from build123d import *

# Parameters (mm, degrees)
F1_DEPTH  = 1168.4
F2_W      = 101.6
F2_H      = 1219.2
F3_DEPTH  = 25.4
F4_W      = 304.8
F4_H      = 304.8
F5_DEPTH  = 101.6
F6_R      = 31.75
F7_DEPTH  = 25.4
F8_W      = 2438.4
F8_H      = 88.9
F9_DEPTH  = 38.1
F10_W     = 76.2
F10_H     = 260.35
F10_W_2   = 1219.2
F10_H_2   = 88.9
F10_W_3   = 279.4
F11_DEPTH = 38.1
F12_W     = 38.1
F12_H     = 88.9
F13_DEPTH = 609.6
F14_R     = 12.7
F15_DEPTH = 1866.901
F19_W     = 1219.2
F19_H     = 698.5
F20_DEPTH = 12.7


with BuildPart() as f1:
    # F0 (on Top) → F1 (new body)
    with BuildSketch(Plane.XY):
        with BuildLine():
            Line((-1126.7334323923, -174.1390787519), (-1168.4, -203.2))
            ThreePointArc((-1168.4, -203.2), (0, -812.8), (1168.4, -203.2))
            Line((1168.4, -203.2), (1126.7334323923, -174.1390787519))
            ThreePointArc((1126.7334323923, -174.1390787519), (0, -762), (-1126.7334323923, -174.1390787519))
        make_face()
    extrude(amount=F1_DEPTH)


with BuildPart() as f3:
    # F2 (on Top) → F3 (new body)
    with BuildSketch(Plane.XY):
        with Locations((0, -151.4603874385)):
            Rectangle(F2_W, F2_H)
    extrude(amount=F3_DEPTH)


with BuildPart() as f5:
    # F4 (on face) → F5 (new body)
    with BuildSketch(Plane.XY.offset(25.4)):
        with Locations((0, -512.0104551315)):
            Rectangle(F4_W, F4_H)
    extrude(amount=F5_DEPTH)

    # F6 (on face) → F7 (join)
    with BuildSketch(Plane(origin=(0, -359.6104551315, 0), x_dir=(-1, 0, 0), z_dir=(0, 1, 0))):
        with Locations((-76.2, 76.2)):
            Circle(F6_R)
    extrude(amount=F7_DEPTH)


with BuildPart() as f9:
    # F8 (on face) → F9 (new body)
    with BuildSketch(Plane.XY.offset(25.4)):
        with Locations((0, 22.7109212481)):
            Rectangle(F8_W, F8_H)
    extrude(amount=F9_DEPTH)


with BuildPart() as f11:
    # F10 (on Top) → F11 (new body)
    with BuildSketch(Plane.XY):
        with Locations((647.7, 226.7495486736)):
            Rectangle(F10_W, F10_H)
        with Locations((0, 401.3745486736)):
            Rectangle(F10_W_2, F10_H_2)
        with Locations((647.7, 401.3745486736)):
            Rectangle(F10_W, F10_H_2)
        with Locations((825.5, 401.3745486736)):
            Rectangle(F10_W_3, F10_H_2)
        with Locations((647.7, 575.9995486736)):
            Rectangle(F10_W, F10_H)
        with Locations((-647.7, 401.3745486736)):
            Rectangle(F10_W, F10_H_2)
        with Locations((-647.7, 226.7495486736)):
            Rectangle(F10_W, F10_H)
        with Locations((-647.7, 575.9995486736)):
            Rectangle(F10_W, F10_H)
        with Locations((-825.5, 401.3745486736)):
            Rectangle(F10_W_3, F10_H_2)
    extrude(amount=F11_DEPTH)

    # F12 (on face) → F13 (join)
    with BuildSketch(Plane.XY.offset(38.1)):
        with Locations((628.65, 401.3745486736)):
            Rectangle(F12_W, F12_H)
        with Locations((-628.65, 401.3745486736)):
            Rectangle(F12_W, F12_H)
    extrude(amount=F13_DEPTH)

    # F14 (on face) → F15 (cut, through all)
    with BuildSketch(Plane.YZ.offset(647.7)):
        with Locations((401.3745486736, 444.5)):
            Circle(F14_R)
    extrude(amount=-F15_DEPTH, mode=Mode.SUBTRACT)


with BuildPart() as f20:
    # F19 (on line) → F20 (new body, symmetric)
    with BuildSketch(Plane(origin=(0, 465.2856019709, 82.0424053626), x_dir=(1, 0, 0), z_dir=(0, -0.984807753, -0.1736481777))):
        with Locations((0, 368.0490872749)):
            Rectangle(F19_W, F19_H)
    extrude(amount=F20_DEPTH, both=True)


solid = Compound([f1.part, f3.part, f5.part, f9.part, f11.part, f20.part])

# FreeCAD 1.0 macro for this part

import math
import FreeCAD as App
import Part
import Sketcher

V = App.Vector
Q = App.Units.Quantity

doc = App.newDocument("Part")
body = doc.addObject("PartDesign::Body", "Body")

# Sketch on XY plane
sketch1 = body.newObject("Sketcher::SketchObject", "Sketch")
sketch1.AttachmentSupport = (doc.getObject("XY_Plane"), [""])
sketch1.MapMode = "FlatFace"
sketch1.addGeometry(Part.LineSegment(V(-1127, -174, 0), V(-1168, -203, 0)), False)
sketch1.addGeometry(Part.ArcOfCircle(Part.Circle(V(0, 612, 0), V(0, 0, 1), 1425), math.radians(-145), math.radians(-35)), False)
sketch1.addGeometry(Part.LineSegment(V(1168, -203, 0), V(1127, -174, 0)), False)
sketch1.addGeometry(Part.ArcOfCircle(Part.Circle(V(0, 612, 0), V(0, 0, 1), 1374), math.radians(-145), math.radians(-35)), False)
sketch1.addConstraint(Sketcher.Constraint("Coincident", 0, 2, 1, 1))
sketch1.addConstraint(Sketcher.Constraint("Coincident", 1, 2, 2, 1))
sketch1.addConstraint(Sketcher.Constraint("Coincident", 2, 2, 3, 2))
sketch1.addConstraint(Sketcher.Constraint("Coincident", 3, 1, 0, 1))
sketch1.addConstraint(Sketcher.Constraint("Coincident", 3, 3, 1, 3))
sketch1.addConstraint(Sketcher.Constraint("PointOnObject", 1, 3, -2))
sketch1.addConstraint(Sketcher.Constraint("Distance", 0, Q("2 in")))
sketch1.addConstraint(Sketcher.Constraint("DistanceX", 0, 2, -1, 1, Q("46 in")))
sketch1.addConstraint(Sketcher.Constraint("DistanceY", 0, 2, -1, 1, Q("8 in")))
sketch1.addConstraint(Sketcher.Constraint("Radius", 1, 1424.516667))
sketch1.addConstraint(Sketcher.Constraint("DistanceY", 2, 2, -1, 1, 174.139079))
sketch1.addConstraint(Sketcher.Constraint("Angle", 0, Q("-145.105623 deg")))
sketch1.addConstraint(Sketcher.Constraint("Angle", 2, Q("145.105623 deg")))
pad1 = body.newObject("PartDesign::Pad", "Pad")
pad1.Profile = sketch1
pad1.Length = Q("46 in")
body2 = doc.addObject("PartDesign::Body", "Body001")

# Sketch on XY plane
sketch2 = body2.newObject("Sketcher::SketchObject", "Sketch001")
sketch2.AttachmentSupport = (doc.getObject("XY_Plane001"), [""])
sketch2.MapMode = "FlatFace"
sketch2.addGeometry(Part.LineSegment(V(-51, 458, 0), V(-51, -761, 0)), False)
sketch2.addGeometry(Part.LineSegment(V(-51, -761, 0), V(51, -761, 0)), False)
sketch2.addGeometry(Part.LineSegment(V(51, -761, 0), V(51, 458, 0)), False)
sketch2.addGeometry(Part.LineSegment(V(51, 458, 0), V(-51, 458, 0)), False)
sketch2.addConstraint(Sketcher.Constraint("Coincident", 0, 2, 1, 1))
sketch2.addConstraint(Sketcher.Constraint("Coincident", 1, 2, 2, 1))
sketch2.addConstraint(Sketcher.Constraint("Coincident", 2, 2, 3, 1))
sketch2.addConstraint(Sketcher.Constraint("Coincident", 3, 2, 0, 1))
sketch2.addConstraint(Sketcher.Constraint("Vertical", 0))
sketch2.addConstraint(Sketcher.Constraint("Horizontal", 1))
sketch2.addConstraint(Sketcher.Constraint("Vertical", 2))
sketch2.addConstraint(Sketcher.Constraint("Horizontal", 3))
sketch2.addConstraint(Sketcher.Constraint("DistanceX", 1, 1, 1, 2, Q("4 in")))
sketch2.addConstraint(Sketcher.Constraint("DistanceY", 0, 2, 0, 1, Q("48 in")))
sketch2.addConstraint(Sketcher.Constraint("DistanceX", 0, 2, -1, 1, Q("2 in")))
sketch2.addConstraint(Sketcher.Constraint("DistanceY", 0, 2, -1, 1, 761.060387))
pad2 = body2.newObject("PartDesign::Pad", "Pad001")
pad2.Profile = sketch2
pad2.Length = Q("1 in")
body3 = doc.addObject("PartDesign::Body", "Body002")

# Sketch on XY plane
sketch3 = body3.newObject("Sketcher::SketchObject", "Sketch002")
sketch3.AttachmentSupport = (doc.getObject("XY_Plane002"), [""])
sketch3.MapMode = "FlatFace"
sketch3.AttachmentOffset = App.Placement(V(0, 0, 1 * 25.4), App.Rotation())
sketch3.addGeometry(Part.LineSegment(V(-152, -360, 0), V(-152, -664, 0)), False)
sketch3.addGeometry(Part.LineSegment(V(-152, -664, 0), V(152, -664, 0)), False)
sketch3.addGeometry(Part.LineSegment(V(152, -664, 0), V(152, -360, 0)), False)
sketch3.addGeometry(Part.LineSegment(V(152, -360, 0), V(-152, -360, 0)), False)
sketch3.addConstraint(Sketcher.Constraint("Coincident", 0, 2, 1, 1))
sketch3.addConstraint(Sketcher.Constraint("Coincident", 1, 2, 2, 1))
sketch3.addConstraint(Sketcher.Constraint("Coincident", 2, 2, 3, 1))
sketch3.addConstraint(Sketcher.Constraint("Coincident", 3, 2, 0, 1))
sketch3.addConstraint(Sketcher.Constraint("Vertical", 0))
sketch3.addConstraint(Sketcher.Constraint("Horizontal", 1))
sketch3.addConstraint(Sketcher.Constraint("Vertical", 2))
sketch3.addConstraint(Sketcher.Constraint("Horizontal", 3))
sketch3.addConstraint(Sketcher.Constraint("Equal", 3, 0))
sketch3.addConstraint(Sketcher.Constraint("DistanceX", 1, 1, 1, 2, Q("12 in")))
sketch3.addConstraint(Sketcher.Constraint("DistanceX", 0, 2, -1, 1, Q("6 in")))
sketch3.addConstraint(Sketcher.Constraint("DistanceY", 0, 2, -1, 1, 664.410455))
pad3 = body3.newObject("PartDesign::Pad", "Pad002")
pad3.Profile = sketch3
pad3.Length = Q("4 in")

# Sketch on XZ plane
sketch4 = body3.newObject("Sketcher::SketchObject", "Sketch003")
sketch4.AttachmentSupport = (doc.getObject("XZ_Plane002"), [""])
sketch4.MapMode = "FlatFace"
sketch4.AttachmentOffset = App.Placement(V(0, 0, 359.610455), App.Rotation())
sketch4.addGeometry(Part.Circle(V(76, 76, 0), V(0, 0, 1), 32), False)
sketch4.addConstraint(Sketcher.Constraint("Diameter", 0, Q("2.5 in")))
sketch4.addConstraint(Sketcher.Constraint("DistanceX", -1, 1, 0, 3, Q("3 in")))
sketch4.addConstraint(Sketcher.Constraint("DistanceY", -1, 1, 0, 3, Q("3 in")))
pad4 = body3.newObject("PartDesign::Pad", "Pad003")
pad4.Profile = sketch4
pad4.Length = Q("1 in")
pad4.Reversed = True
body4 = doc.addObject("PartDesign::Body", "Body003")

# Sketch on XY plane
sketch5 = body4.newObject("Sketcher::SketchObject", "Sketch004")
sketch5.AttachmentSupport = (doc.getObject("XY_Plane003"), [""])
sketch5.MapMode = "FlatFace"
sketch5.AttachmentOffset = App.Placement(V(0, 0, 1 * 25.4), App.Rotation())
sketch5.addGeometry(Part.LineSegment(V(-1219, 67, 0), V(-1219, -22, 0)), False)
sketch5.addGeometry(Part.LineSegment(V(-1219, -22, 0), V(1219, -22, 0)), False)
sketch5.addGeometry(Part.LineSegment(V(1219, -22, 0), V(1219, 67, 0)), False)
sketch5.addGeometry(Part.LineSegment(V(1219, 67, 0), V(-1219, 67, 0)), False)
sketch5.addConstraint(Sketcher.Constraint("Coincident", 0, 2, 1, 1))
sketch5.addConstraint(Sketcher.Constraint("Coincident", 1, 2, 2, 1))
sketch5.addConstraint(Sketcher.Constraint("Coincident", 2, 2, 3, 1))
sketch5.addConstraint(Sketcher.Constraint("Coincident", 3, 2, 0, 1))
sketch5.addConstraint(Sketcher.Constraint("Vertical", 0))
sketch5.addConstraint(Sketcher.Constraint("Horizontal", 1))
sketch5.addConstraint(Sketcher.Constraint("Vertical", 2))
sketch5.addConstraint(Sketcher.Constraint("Horizontal", 3))
sketch5.addConstraint(Sketcher.Constraint("DistanceX", 1, 1, 1, 2, Q("96 in")))
sketch5.addConstraint(Sketcher.Constraint("DistanceY", 0, 2, 0, 1, Q("3.5 in")))
sketch5.addConstraint(Sketcher.Constraint("DistanceX", 0, 2, -1, 1, Q("48 in")))
sketch5.addConstraint(Sketcher.Constraint("DistanceY", 0, 2, -1, 1, 21.739079))
pad5 = body4.newObject("PartDesign::Pad", "Pad004")
pad5.Profile = sketch5
pad5.Length = Q("1.5 in")
body5 = doc.addObject("PartDesign::Body", "Body004")

# Sketch on XY plane
sketch6 = body5.newObject("Sketcher::SketchObject", "Sketch005")
sketch6.AttachmentSupport = (doc.getObject("XY_Plane004"), [""])
sketch6.MapMode = "FlatFace"
sketch6.addGeometry(Part.LineSegment(V(610, 357, 0), V(610, 97, 0)), False)
sketch6.addGeometry(Part.LineSegment(V(610, 97, 0), V(686, 97, 0)), False)
sketch6.addGeometry(Part.LineSegment(V(686, 97, 0), V(686, 357, 0)), False)
sketch6.addGeometry(Part.LineSegment(V(686, 357, 0), V(965, 357, 0)), False)
sketch6.addGeometry(Part.LineSegment(V(965, 357, 0), V(965, 446, 0)), False)
sketch6.addGeometry(Part.LineSegment(V(965, 446, 0), V(686, 446, 0)), False)
sketch6.addGeometry(Part.LineSegment(V(686, 446, 0), V(686, 706, 0)), False)
sketch6.addGeometry(Part.LineSegment(V(686, 706, 0), V(610, 706, 0)), False)
sketch6.addGeometry(Part.LineSegment(V(610, 706, 0), V(610, 446, 0)), False)
sketch6.addGeometry(Part.LineSegment(V(610, 446, 0), V(-610, 446, 0)), False)
sketch6.addGeometry(Part.LineSegment(V(-610, 446, 0), V(-610, 706, 0)), False)
sketch6.addGeometry(Part.LineSegment(V(-610, 706, 0), V(-686, 706, 0)), False)
sketch6.addGeometry(Part.LineSegment(V(-686, 706, 0), V(-686, 446, 0)), False)
sketch6.addGeometry(Part.LineSegment(V(-686, 446, 0), V(-965, 446, 0)), False)
sketch6.addGeometry(Part.LineSegment(V(-965, 446, 0), V(-965, 357, 0)), False)
sketch6.addGeometry(Part.LineSegment(V(-965, 357, 0), V(-686, 357, 0)), False)
sketch6.addGeometry(Part.LineSegment(V(-686, 357, 0), V(-686, 97, 0)), False)
sketch6.addGeometry(Part.LineSegment(V(-686, 97, 0), V(-610, 97, 0)), False)
sketch6.addGeometry(Part.LineSegment(V(-610, 97, 0), V(-610, 357, 0)), False)
sketch6.addGeometry(Part.LineSegment(V(-610, 357, 0), V(610, 357, 0)), False)
sketch6.addConstraint(Sketcher.Constraint("Coincident", 0, 2, 1, 1))
sketch6.addConstraint(Sketcher.Constraint("Coincident", 1, 2, 2, 1))
sketch6.addConstraint(Sketcher.Constraint("Coincident", 2, 2, 3, 1))
sketch6.addConstraint(Sketcher.Constraint("Coincident", 3, 2, 4, 1))
sketch6.addConstraint(Sketcher.Constraint("Coincident", 4, 2, 5, 1))
sketch6.addConstraint(Sketcher.Constraint("Coincident", 5, 2, 6, 1))
sketch6.addConstraint(Sketcher.Constraint("Coincident", 6, 2, 7, 1))
sketch6.addConstraint(Sketcher.Constraint("Coincident", 7, 2, 8, 1))
sketch6.addConstraint(Sketcher.Constraint("Coincident", 8, 2, 9, 1))
sketch6.addConstraint(Sketcher.Constraint("Coincident", 9, 2, 10, 1))
sketch6.addConstraint(Sketcher.Constraint("Coincident", 10, 2, 11, 1))
sketch6.addConstraint(Sketcher.Constraint("Coincident", 11, 2, 12, 1))
sketch6.addConstraint(Sketcher.Constraint("Coincident", 12, 2, 13, 1))
sketch6.addConstraint(Sketcher.Constraint("Coincident", 13, 2, 14, 1))
sketch6.addConstraint(Sketcher.Constraint("Coincident", 14, 2, 15, 1))
sketch6.addConstraint(Sketcher.Constraint("Coincident", 15, 2, 16, 1))
sketch6.addConstraint(Sketcher.Constraint("Coincident", 16, 2, 17, 1))
sketch6.addConstraint(Sketcher.Constraint("Coincident", 17, 2, 18, 1))
sketch6.addConstraint(Sketcher.Constraint("Coincident", 18, 2, 19, 1))
sketch6.addConstraint(Sketcher.Constraint("Coincident", 19, 2, 0, 1))
sketch6.addConstraint(Sketcher.Constraint("Vertical", 0))
sketch6.addConstraint(Sketcher.Constraint("Horizontal", 1))
sketch6.addConstraint(Sketcher.Constraint("Vertical", 2))
sketch6.addConstraint(Sketcher.Constraint("Horizontal", 3))
sketch6.addConstraint(Sketcher.Constraint("Vertical", 4))
sketch6.addConstraint(Sketcher.Constraint("Horizontal", 5))
sketch6.addConstraint(Sketcher.Constraint("Vertical", 6))
sketch6.addConstraint(Sketcher.Constraint("Horizontal", 7))
sketch6.addConstraint(Sketcher.Constraint("Vertical", 8))
sketch6.addConstraint(Sketcher.Constraint("Horizontal", 9))
sketch6.addConstraint(Sketcher.Constraint("Vertical", 10))
sketch6.addConstraint(Sketcher.Constraint("Horizontal", 11))
sketch6.addConstraint(Sketcher.Constraint("Vertical", 12))
sketch6.addConstraint(Sketcher.Constraint("Horizontal", 13))
sketch6.addConstraint(Sketcher.Constraint("Vertical", 14))
sketch6.addConstraint(Sketcher.Constraint("Horizontal", 15))
sketch6.addConstraint(Sketcher.Constraint("Vertical", 16))
sketch6.addConstraint(Sketcher.Constraint("Horizontal", 17))
sketch6.addConstraint(Sketcher.Constraint("Vertical", 18))
sketch6.addConstraint(Sketcher.Constraint("Horizontal", 19))
sketch6.addConstraint(Sketcher.Constraint("Symmetric", 7, 2, 10, 2, -2))
sketch6.addConstraint(Sketcher.Constraint("Symmetric", 5, 2, 12, 2, -2))
sketch6.addConstraint(Sketcher.Constraint("Symmetric", 3, 2, 14, 2, -2))
sketch6.addConstraint(Sketcher.Constraint("Symmetric", 1, 2, 16, 2, -2))
sketch6.addConstraint(Sketcher.Constraint("Horizontal", 5, 2, 8, 2))
sketch6.addConstraint(Sketcher.Constraint("Horizontal", 15, 2, 18, 2))
sketch6.addConstraint(Sketcher.Constraint("Vertical", 2, 2, 5, 2))
sketch6.addConstraint(Sketcher.Constraint("Vertical", 0, 2, 7, 2))
sketch6.addConstraint(Sketcher.Constraint("Vertical", 10, 2, 17, 2))
sketch6.addConstraint(Sketcher.Constraint("Equal", 2, 6))
sketch6.addConstraint(Sketcher.Constraint("DistanceX", 1, 1, 1, 2, Q("3 in")))
sketch6.addConstraint(Sketcher.Constraint("DistanceX", 3, 1, 3, 2, Q("11 in")))
sketch6.addConstraint(Sketcher.Constraint("DistanceX", 9, 2, 9, 1, Q("48 in")))
sketch6.addConstraint(Sketcher.Constraint("DistanceY", 4, 1, 4, 2, Q("3.5 in")))
sketch6.addConstraint(Sketcher.Constraint("DistanceY", 1, 2, 6, 2, Q("24 in")))
sketch6.addConstraint(Sketcher.Constraint("DistanceY", -1, 1, 0, 2, 96.574549))
pad6 = body5.newObject("PartDesign::Pad", "Pad005")
pad6.Profile = sketch6
pad6.Length = Q("1.5 in")

# Sketch on XY plane
sketch7 = body5.newObject("Sketcher::SketchObject", "Sketch006")
sketch7.AttachmentSupport = (doc.getObject("XY_Plane004"), [""])
sketch7.MapMode = "FlatFace"
sketch7.AttachmentOffset = App.Placement(V(0, 0, 1.5 * 25.4), App.Rotation())
sketch7.addGeometry(Part.LineSegment(V(610, 446, 0), V(610, 357, 0)), False)
sketch7.addGeometry(Part.LineSegment(V(610, 357, 0), V(648, 357, 0)), False)
sketch7.addGeometry(Part.LineSegment(V(648, 357, 0), V(648, 446, 0)), False)
sketch7.addGeometry(Part.LineSegment(V(648, 446, 0), V(610, 446, 0)), False)
sketch7.addGeometry(Part.LineSegment(V(-648, 446, 0), V(-648, 357, 0)), False)
sketch7.addGeometry(Part.LineSegment(V(-648, 357, 0), V(-610, 357, 0)), False)
sketch7.addGeometry(Part.LineSegment(V(-610, 357, 0), V(-610, 446, 0)), False)
sketch7.addGeometry(Part.LineSegment(V(-610, 446, 0), V(-648, 446, 0)), False)
sketch7.addConstraint(Sketcher.Constraint("Coincident", 0, 2, 1, 1))
sketch7.addConstraint(Sketcher.Constraint("Coincident", 1, 2, 2, 1))
sketch7.addConstraint(Sketcher.Constraint("Coincident", 2, 2, 3, 1))
sketch7.addConstraint(Sketcher.Constraint("Coincident", 3, 2, 0, 1))
sketch7.addConstraint(Sketcher.Constraint("Coincident", 4, 2, 5, 1))
sketch7.addConstraint(Sketcher.Constraint("Coincident", 5, 2, 6, 1))
sketch7.addConstraint(Sketcher.Constraint("Coincident", 6, 2, 7, 1))
sketch7.addConstraint(Sketcher.Constraint("Coincident", 7, 2, 4, 1))
sketch7.addConstraint(Sketcher.Constraint("Vertical", 0))
sketch7.addConstraint(Sketcher.Constraint("Horizontal", 1))
sketch7.addConstraint(Sketcher.Constraint("Vertical", 2))
sketch7.addConstraint(Sketcher.Constraint("Horizontal", 3))
sketch7.addConstraint(Sketcher.Constraint("Vertical", 4))
sketch7.addConstraint(Sketcher.Constraint("Horizontal", 5))
sketch7.addConstraint(Sketcher.Constraint("Vertical", 6))
sketch7.addConstraint(Sketcher.Constraint("Horizontal", 7))
sketch7.addConstraint(Sketcher.Constraint("Symmetric", 1, 2, 4, 2, -2))
sketch7.addConstraint(Sketcher.Constraint("Symmetric", 3, 2, 6, 2, -2))
sketch7.addConstraint(Sketcher.Constraint("DistanceX", 1, 1, 1, 2, Q("1.5 in")))
sketch7.addConstraint(Sketcher.Constraint("DistanceY", 0, 2, 0, 1, Q("3.5 in")))
sketch7.addConstraint(Sketcher.Constraint("DistanceX", -1, 1, 0, 2, Q("24 in")))
sketch7.addConstraint(Sketcher.Constraint("DistanceY", -1, 1, 0, 2, 356.924549))
pad7 = body5.newObject("PartDesign::Pad", "Pad006")
pad7.Profile = sketch7
pad7.Length = Q("24 in")

# Sketch on YZ plane
sketch8 = body5.newObject("Sketcher::SketchObject", "Sketch007")
sketch8.AttachmentSupport = (doc.getObject("YZ_Plane004"), [""])
sketch8.MapMode = "FlatFace"
sketch8.AttachmentOffset = App.Placement(V(0, 0, 25.5 * 25.4), App.Rotation())
sketch8.addGeometry(Part.Circle(V(401, 444, 0), V(0, 0, 1), 13), False)
sketch8.addConstraint(Sketcher.Constraint("Diameter", 0, Q("1 in")))
sketch8.addConstraint(Sketcher.Constraint("DistanceY", -1, 1, 0, 3, Q("17.5 in")))
sketch8.addConstraint(Sketcher.Constraint("DistanceX", -1, 1, 0, 3, 401.374549))
pocket1 = body5.newObject("PartDesign::Pocket", "Pocket")
pocket1.Profile = sketch8
pocket1.Type = "ThroughAll"
body6 = doc.addObject("PartDesign::Body", "Body005")

# Sketch on an angled plane
sketch9 = body6.newObject("Sketcher::SketchObject", "Sketch008")
sketch9.Placement = App.Placement(V(0, 465.285602, 82.042405), App.Rotation(V(1, 0, 0), V(0, -0.173648178, 0.984807753), V(0, -0.984807753, -0.173648178), "ZXY"))
sketch9.addGeometry(Part.LineSegment(V(-610, 717, 0), V(-610, 19, 0)), False)
sketch9.addGeometry(Part.LineSegment(V(-610, 19, 0), V(610, 19, 0)), False)
sketch9.addGeometry(Part.LineSegment(V(610, 19, 0), V(610, 717, 0)), False)
sketch9.addGeometry(Part.LineSegment(V(610, 717, 0), V(-610, 717, 0)), False)
sketch9.addConstraint(Sketcher.Constraint("Coincident", 0, 2, 1, 1))
sketch9.addConstraint(Sketcher.Constraint("Coincident", 1, 2, 2, 1))
sketch9.addConstraint(Sketcher.Constraint("Coincident", 2, 2, 3, 1))
sketch9.addConstraint(Sketcher.Constraint("Coincident", 3, 2, 0, 1))
sketch9.addConstraint(Sketcher.Constraint("Vertical", 0))
sketch9.addConstraint(Sketcher.Constraint("Horizontal", 1))
sketch9.addConstraint(Sketcher.Constraint("Vertical", 2))
sketch9.addConstraint(Sketcher.Constraint("Horizontal", 3))
sketch9.addConstraint(Sketcher.Constraint("DistanceX", 1, 1, 1, 2, Q("48 in")))
sketch9.addConstraint(Sketcher.Constraint("DistanceY", 0, 2, 0, 1, Q("27.5 in")))
sketch9.addConstraint(Sketcher.Constraint("DistanceX", 0, 2, -1, 1, Q("24 in")))
sketch9.addConstraint(Sketcher.Constraint("DistanceY", -1, 1, 0, 2, 18.799087))
pad8 = body6.newObject("PartDesign::Pad", "Pad007")
pad8.Profile = sketch9
pad8.Length = Q("1 in")
pad8.Midplane = True

doc.recompute()
